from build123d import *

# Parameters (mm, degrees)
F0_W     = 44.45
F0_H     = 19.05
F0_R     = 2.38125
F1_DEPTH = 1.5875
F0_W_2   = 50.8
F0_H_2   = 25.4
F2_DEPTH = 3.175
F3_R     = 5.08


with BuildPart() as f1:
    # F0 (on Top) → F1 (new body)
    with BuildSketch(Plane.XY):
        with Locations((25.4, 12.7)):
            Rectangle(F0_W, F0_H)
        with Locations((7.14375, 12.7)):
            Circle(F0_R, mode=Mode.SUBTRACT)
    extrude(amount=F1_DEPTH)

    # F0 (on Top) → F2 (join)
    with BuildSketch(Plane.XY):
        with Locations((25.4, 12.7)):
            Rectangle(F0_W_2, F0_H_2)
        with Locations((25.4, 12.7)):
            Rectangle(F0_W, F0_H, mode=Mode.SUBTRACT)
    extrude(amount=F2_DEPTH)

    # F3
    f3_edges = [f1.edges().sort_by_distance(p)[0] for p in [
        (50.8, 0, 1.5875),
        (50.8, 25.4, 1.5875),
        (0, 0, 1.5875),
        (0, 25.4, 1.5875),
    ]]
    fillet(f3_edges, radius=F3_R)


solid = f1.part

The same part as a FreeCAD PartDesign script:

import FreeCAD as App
import Part
import Sketcher
Q = App.Units.Quantity


def edges_at(feature, points):
    """Names of the edges that pass closest to the given points."""
    edges = feature.Shape.Edges
    near = lambda p: min(range(len(edges)), key=lambda i: edges[i].distToShape(Part.Vertex(*p))[0])
    return sorted({f"Edge{near(p) + 1}" for p in points})

doc = App.newDocument("Part")
body = doc.addObject("PartDesign::Body", "Body")

sketch1 = body.newObject("Sketcher::SketchObject", "Sketch")
sketch1.AttachmentSupport = (doc.getObject("XY_Plane"), [""])
sketch1.MapMode = "FlatFace"
sketch1.addGeometry([
    Part.LineSegment(App.Vector(3.2, 22.2, 0), App.Vector(3.2, 3.2, 0)),
    Part.LineSegment(App.Vector(3.2, 3.2, 0), App.Vector(47.6, 3.2, 0)),
    Part.LineSegment(App.Vector(47.6, 3.2, 0), App.Vector(47.6, 22.2, 0)),
    Part.LineSegment(App.Vector(47.6, 22.2, 0), App.Vector(3.2, 22.2, 0)),
    Part.Circle(App.Vector(7.1, 12.7, 0), App.Vector(0, 0, 1), 2.4),
], False)
sketch1.addConstraint([
    Sketcher.Constraint("Coincident", 0, 2, 1, 1),
    Sketcher.Constraint("Coincident", 1, 2, 2, 1),
    Sketcher.Constraint("Coincident", 2, 2, 3, 1),
    Sketcher.Constraint("Coincident", 3, 2, 0, 1),
    Sketcher.Constraint("Vertical", 0),
    Sketcher.Constraint("Horizontal", 1),
    Sketcher.Constraint("Vertical", 2),
    Sketcher.Constraint("Horizontal", 3),
    Sketcher.Constraint("Diameter", 4, Q("0.1875 in")),
    Sketcher.Constraint("DistanceX", 1, 1, 1, 2, Q("1.75 in")),
    Sketcher.Constraint("DistanceY", 0, 2, 0, 1, Q("0.75 in")),
    Sketcher.Constraint("DistanceY", -1, 1, 4, 3, Q("0.5 in")),
    Sketcher.Constraint("DistanceX", -1, 1, 4, 3, Q("0.28125 in")),
    Sketcher.Constraint("DistanceX", -1, 1, 0, 2, Q("0.125 in")),
    Sketcher.Constraint("DistanceY", -1, 1, 0, 2, Q("0.125 in")),
])
pad1 = body.newObject("PartDesign::Pad", "Pad")
pad1.Profile = sketch1
pad1.Length = Q("0.0625 in")

sketch2 = body.newObject("Sketcher::SketchObject", "Sketch001")
sketch2.AttachmentSupport = (doc.getObject("XY_Plane"), [""])
sketch2.MapMode = "FlatFace"
sketch2.addGeometry([
    Part.LineSegment(App.Vector(0, 25, 0), App.Vector(0, 0, 0)),
    Part.LineSegment(App.Vector(0, 0, 0), App.Vector(51, 0, 0)),
    Part.LineSegment(App.Vector(51, 0, 0), App.Vector(51, 25, 0)),
    Part.LineSegment(App.Vector(51, 25, 0), App.Vector(0, 25, 0)),
    Part.LineSegment(App.Vector(48, 3, 0), App.Vector(3, 3, 0)),
    Part.LineSegment(App.Vector(3, 3, 0), App.Vector(3, 22, 0)),
    Part.LineSegment(App.Vector(3, 22, 0), App.Vector(48, 22, 0)),
    Part.LineSegment(App.Vector(48, 22, 0), App.Vector(48, 3, 0)),
], False)
sketch2.addConstraint([
    Sketcher.Constraint("Coincident", 0, 2, 1, 1),
    Sketcher.Constraint("Coincident", 1, 2, 2, 1),
    Sketcher.Constraint("Coincident", 2, 2, 3, 1),
    Sketcher.Constraint("Coincident", 3, 2, 0, 1),
    Sketcher.Constraint("Coincident", 4, 2, 5, 1),
    Sketcher.Constraint("Coincident", 5, 2, 6, 1),
    Sketcher.Constraint("Coincident", 6, 2, 7, 1),
    Sketcher.Constraint("Coincident", 7, 2, 4, 1),
    Sketcher.Constraint("Vertical", 0),
    Sketcher.Constraint("Horizontal", 1),
    Sketcher.Constraint("Vertical", 2),
    Sketcher.Constraint("Horizontal", 3),
    Sketcher.Constraint("Horizontal", 4),
    Sketcher.Constraint("Vertical", 5),
    Sketcher.Constraint("Horizontal", 6),
    Sketcher.Constraint("Vertical", 7),
    Sketcher.Constraint("Coincident", 0, 2, -1, 1),
    Sketcher.Constraint("DistanceX", 1, 1, 1, 2, Q("2 in")),
    Sketcher.Constraint("DistanceY", 0, 2, 0, 1, Q("1 in")),
    Sketcher.Constraint("DistanceX", 4, 2, 4, 1, Q("1.75 in")),
    Sketcher.Constraint("DistanceY", 5, 1, 5, 2, Q("0.75 in")),
    Sketcher.Constraint("DistanceX", -1, 1, 4, 2, Q("0.125 in")),
    Sketcher.Constraint("DistanceY", -1, 1, 4, 2, Q("0.125 in")),
])
pad2 = body.newObject("PartDesign::Pad", "Pad001")
pad2.Profile = sketch2
pad2.Length = Q("0.125 in")
doc.recompute()

fillet = body.newObject("PartDesign::Fillet", "Fillet")
fillet.Base = (pad2, edges_at(pad2, [
    (50.8, 0, 1.587),
    (50.8, 25.4, 1.587),
    (0, 0, 1.587),
    (0, 25.4, 1.587),
]))
fillet.Radius = Q("0.2 in")

doc.recompute()
